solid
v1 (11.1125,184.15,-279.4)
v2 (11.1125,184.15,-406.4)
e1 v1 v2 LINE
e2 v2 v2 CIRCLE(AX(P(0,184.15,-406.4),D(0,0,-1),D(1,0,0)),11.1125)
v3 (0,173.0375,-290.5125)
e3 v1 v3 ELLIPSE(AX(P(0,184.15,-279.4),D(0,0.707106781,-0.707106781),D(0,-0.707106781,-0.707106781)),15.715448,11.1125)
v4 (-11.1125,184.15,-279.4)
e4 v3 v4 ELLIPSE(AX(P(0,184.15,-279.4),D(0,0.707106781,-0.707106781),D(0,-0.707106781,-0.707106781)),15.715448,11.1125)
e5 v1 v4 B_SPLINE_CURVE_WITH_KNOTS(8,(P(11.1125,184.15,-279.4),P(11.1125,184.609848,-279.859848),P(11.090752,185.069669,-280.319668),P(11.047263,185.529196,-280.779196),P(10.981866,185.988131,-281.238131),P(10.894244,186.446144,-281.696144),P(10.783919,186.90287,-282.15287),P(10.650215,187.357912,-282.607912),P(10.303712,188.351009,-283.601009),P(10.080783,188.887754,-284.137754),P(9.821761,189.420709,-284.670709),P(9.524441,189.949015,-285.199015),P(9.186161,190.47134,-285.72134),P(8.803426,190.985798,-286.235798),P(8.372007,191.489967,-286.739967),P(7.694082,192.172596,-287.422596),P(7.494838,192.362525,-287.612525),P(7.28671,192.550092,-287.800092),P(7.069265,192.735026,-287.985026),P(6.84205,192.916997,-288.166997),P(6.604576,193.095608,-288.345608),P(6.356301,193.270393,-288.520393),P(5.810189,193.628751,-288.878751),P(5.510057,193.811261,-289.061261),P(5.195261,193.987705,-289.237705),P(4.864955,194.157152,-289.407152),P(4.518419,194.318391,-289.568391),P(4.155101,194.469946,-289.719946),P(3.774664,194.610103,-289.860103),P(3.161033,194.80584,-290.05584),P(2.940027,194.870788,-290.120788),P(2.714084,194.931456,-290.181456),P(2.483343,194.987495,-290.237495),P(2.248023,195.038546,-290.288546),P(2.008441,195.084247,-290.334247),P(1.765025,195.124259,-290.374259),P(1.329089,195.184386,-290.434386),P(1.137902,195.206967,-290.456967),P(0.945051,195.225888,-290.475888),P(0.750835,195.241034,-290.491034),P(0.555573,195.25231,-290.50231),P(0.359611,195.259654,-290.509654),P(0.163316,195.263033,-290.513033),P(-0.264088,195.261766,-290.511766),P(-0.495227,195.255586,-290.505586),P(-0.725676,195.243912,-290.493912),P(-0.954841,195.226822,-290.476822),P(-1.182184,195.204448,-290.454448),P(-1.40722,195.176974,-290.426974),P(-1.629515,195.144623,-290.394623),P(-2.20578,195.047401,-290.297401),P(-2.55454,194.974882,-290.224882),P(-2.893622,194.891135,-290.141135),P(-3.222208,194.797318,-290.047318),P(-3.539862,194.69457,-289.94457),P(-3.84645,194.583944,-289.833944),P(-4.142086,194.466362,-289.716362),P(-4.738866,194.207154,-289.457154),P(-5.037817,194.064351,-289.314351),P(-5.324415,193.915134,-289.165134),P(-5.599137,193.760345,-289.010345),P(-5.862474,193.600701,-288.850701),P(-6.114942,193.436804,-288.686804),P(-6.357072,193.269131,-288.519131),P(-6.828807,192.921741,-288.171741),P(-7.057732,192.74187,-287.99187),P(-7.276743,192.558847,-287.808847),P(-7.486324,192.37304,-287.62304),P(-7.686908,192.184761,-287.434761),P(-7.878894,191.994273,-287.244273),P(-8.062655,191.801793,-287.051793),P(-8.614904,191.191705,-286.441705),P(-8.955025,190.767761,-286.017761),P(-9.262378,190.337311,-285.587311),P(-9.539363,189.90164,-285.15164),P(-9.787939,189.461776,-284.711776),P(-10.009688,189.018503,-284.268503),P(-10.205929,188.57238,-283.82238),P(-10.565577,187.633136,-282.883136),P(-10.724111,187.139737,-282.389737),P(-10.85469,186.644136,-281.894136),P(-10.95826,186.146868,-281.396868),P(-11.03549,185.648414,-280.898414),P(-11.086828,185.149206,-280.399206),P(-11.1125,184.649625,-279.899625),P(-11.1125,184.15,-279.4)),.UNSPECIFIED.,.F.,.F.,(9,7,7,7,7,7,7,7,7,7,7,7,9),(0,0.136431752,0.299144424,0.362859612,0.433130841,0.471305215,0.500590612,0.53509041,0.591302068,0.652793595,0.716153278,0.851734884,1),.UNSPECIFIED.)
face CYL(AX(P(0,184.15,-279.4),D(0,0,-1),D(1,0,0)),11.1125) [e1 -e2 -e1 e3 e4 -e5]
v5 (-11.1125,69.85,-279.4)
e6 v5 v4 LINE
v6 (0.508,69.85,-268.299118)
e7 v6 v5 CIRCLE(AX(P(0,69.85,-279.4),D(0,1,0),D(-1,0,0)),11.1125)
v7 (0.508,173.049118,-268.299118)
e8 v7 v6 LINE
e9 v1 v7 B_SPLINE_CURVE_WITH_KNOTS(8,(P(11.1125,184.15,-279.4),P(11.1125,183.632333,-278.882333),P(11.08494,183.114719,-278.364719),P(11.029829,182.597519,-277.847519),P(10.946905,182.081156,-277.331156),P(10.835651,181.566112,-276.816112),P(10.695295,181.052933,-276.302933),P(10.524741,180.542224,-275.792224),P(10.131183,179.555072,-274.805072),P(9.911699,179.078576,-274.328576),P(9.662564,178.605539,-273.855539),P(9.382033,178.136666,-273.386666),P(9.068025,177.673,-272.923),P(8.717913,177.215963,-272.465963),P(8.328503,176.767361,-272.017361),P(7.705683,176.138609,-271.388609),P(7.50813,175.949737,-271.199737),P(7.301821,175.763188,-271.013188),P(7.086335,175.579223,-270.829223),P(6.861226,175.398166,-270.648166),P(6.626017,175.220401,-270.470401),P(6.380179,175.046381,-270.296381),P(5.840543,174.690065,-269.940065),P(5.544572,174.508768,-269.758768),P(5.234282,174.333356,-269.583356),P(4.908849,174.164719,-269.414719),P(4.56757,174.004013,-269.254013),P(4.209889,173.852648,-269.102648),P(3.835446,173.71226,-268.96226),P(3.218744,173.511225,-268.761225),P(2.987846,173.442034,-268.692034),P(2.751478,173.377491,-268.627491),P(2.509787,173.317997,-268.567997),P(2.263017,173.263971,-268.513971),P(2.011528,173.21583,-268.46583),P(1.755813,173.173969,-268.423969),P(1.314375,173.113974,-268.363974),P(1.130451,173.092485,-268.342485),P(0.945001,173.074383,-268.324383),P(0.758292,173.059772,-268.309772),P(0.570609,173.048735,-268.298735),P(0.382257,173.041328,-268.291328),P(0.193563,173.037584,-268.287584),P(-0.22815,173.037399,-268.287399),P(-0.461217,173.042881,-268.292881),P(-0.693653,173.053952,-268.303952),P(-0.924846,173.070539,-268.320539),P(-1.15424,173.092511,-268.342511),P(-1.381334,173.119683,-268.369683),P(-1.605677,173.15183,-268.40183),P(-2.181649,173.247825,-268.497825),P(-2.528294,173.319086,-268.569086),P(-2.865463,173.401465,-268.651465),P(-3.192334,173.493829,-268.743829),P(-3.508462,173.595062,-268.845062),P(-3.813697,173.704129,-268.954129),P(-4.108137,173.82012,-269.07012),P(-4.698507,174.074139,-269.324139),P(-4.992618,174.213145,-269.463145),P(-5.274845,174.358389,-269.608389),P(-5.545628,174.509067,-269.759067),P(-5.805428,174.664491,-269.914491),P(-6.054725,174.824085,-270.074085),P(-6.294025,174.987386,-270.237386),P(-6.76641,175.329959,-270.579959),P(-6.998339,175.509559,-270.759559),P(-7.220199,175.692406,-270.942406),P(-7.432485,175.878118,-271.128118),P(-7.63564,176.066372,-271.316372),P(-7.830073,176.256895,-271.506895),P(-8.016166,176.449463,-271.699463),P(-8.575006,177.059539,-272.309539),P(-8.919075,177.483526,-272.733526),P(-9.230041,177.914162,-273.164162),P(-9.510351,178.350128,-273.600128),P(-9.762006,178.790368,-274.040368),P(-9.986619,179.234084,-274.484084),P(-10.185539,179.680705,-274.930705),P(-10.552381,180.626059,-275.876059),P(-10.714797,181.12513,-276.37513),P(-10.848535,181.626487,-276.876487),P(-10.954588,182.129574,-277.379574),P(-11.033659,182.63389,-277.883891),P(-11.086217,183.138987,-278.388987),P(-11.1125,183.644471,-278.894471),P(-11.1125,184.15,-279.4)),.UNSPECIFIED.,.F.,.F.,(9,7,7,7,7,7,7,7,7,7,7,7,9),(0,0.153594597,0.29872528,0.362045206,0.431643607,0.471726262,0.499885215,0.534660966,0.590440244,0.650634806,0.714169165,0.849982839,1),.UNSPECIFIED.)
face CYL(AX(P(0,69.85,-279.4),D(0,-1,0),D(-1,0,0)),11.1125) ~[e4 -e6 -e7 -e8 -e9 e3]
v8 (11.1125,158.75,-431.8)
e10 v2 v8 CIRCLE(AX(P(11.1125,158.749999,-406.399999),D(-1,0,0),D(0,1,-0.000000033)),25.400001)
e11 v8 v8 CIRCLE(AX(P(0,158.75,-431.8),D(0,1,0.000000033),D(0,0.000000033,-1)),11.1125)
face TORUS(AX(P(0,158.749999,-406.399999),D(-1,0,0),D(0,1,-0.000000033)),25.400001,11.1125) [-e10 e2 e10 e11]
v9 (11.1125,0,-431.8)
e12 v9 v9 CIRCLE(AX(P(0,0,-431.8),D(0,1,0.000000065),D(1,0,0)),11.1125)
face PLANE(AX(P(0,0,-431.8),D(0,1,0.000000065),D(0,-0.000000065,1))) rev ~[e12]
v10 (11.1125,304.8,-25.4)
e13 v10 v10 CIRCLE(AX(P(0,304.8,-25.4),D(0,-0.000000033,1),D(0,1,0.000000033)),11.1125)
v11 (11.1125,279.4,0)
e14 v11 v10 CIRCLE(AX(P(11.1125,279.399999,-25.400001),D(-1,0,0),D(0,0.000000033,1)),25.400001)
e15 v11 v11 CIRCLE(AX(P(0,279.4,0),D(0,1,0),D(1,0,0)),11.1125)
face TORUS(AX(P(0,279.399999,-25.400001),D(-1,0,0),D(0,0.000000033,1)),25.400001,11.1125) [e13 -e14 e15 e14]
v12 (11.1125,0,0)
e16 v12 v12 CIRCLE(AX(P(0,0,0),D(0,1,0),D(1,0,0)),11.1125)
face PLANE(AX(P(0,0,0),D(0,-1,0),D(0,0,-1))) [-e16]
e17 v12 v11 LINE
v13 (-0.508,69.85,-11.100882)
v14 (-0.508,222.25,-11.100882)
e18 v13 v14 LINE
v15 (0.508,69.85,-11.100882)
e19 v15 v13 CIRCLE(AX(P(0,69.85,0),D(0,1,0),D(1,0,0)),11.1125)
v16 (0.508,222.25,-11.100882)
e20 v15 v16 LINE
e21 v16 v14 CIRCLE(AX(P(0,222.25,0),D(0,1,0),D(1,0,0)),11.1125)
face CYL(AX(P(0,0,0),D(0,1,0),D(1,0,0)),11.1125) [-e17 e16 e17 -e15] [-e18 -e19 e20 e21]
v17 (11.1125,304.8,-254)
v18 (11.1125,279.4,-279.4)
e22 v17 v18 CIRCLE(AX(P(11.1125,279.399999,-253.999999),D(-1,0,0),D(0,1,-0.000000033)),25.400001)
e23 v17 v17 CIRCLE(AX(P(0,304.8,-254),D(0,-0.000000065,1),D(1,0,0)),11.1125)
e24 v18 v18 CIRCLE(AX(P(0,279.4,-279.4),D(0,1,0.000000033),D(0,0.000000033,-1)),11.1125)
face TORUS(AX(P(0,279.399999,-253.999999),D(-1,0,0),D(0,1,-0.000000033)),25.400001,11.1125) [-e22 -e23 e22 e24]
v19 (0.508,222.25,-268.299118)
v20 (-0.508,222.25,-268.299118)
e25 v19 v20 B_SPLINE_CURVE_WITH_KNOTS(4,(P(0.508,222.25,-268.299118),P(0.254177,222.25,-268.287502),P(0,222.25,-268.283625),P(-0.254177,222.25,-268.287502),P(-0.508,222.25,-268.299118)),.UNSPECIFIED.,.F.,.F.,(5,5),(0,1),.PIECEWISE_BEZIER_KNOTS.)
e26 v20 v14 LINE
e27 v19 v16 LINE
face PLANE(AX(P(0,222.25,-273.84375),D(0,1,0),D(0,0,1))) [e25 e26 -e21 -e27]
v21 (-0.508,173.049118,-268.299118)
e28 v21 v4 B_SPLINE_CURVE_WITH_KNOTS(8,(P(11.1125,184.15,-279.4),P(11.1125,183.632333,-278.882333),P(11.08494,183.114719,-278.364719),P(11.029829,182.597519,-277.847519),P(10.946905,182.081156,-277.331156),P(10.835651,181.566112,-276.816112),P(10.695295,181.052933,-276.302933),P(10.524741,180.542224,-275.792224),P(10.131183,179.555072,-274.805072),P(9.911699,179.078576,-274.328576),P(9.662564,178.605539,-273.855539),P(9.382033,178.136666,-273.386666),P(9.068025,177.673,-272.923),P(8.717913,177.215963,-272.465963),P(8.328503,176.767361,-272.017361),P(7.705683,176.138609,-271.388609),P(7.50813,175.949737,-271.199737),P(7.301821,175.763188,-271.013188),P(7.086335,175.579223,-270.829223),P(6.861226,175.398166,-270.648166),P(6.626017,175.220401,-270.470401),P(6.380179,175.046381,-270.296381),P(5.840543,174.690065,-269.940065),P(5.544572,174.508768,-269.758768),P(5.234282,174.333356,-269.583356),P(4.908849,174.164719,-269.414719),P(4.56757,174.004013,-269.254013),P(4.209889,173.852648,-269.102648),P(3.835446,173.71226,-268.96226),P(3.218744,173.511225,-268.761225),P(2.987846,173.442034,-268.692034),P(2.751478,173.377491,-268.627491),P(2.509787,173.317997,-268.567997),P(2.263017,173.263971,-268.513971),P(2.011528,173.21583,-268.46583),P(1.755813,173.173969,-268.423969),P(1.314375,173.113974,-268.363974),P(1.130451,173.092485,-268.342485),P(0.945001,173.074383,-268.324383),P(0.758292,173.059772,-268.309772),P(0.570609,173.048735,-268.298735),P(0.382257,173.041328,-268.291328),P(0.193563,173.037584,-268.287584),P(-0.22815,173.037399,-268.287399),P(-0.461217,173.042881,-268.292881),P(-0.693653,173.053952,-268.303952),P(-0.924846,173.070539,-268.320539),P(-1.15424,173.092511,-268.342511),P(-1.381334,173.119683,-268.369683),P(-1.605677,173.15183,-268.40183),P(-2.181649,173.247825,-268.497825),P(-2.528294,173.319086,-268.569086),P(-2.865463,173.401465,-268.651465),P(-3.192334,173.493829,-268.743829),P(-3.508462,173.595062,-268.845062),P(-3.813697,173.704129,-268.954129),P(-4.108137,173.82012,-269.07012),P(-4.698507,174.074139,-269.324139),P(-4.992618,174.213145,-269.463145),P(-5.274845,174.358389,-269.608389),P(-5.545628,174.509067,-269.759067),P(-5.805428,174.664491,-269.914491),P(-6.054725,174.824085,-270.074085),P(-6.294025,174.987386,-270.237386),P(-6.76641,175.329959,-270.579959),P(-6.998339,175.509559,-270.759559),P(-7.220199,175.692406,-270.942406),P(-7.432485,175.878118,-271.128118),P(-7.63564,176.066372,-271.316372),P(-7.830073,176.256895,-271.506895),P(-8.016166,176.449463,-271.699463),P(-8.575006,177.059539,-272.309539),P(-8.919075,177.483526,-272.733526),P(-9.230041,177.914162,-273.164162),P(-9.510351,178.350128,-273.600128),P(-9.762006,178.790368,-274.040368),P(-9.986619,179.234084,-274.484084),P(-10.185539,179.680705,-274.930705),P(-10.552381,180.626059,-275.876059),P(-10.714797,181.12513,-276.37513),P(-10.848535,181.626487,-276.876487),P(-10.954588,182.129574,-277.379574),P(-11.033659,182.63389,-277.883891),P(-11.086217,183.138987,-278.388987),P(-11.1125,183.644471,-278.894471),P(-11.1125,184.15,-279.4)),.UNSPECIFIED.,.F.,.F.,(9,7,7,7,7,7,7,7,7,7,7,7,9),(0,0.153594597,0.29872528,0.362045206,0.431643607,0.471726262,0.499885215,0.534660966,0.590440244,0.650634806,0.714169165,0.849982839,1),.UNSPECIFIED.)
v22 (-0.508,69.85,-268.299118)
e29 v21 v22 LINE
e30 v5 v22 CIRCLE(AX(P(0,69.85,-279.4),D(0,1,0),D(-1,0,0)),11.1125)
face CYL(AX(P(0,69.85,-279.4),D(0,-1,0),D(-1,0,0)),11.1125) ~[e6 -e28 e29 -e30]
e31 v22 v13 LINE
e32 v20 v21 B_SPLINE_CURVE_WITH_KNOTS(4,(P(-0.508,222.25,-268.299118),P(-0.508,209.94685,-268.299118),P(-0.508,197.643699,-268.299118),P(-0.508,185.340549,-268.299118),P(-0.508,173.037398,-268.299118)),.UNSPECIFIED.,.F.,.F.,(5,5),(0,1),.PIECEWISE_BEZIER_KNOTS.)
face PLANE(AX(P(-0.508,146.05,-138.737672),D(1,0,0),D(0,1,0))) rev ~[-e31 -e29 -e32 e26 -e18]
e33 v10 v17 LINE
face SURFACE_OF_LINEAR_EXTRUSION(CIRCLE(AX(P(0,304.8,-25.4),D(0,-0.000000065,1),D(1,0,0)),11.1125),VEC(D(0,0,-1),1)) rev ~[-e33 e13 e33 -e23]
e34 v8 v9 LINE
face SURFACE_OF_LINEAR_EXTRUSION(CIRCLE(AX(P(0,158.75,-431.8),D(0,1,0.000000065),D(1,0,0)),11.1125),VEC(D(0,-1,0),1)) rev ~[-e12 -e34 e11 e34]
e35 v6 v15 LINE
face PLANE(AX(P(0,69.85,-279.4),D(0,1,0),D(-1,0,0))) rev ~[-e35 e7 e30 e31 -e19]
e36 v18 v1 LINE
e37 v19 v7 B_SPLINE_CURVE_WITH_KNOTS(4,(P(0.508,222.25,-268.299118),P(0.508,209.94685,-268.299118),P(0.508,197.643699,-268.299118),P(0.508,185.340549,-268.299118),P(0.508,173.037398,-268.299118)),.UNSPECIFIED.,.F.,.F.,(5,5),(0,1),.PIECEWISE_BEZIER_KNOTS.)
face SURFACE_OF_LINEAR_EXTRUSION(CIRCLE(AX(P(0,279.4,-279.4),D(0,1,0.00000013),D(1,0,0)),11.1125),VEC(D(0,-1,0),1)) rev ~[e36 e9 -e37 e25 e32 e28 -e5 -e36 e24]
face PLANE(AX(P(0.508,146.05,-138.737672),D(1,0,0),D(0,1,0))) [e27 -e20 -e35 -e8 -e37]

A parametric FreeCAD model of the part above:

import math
import FreeCAD as App
import Part
import Sketcher

V = App.Vector
Q = App.Units.Quantity

doc = App.newDocument("Part")
body = doc.addObject("PartDesign::Body", "Body")

sketch1 = body.newObject("Sketcher::SketchObject", "Sketch")
sketch1.AttachmentSupport = (doc.getObject("XZ_Plane"), [""])
sketch1.MapMode = "FlatFace"
sketch1.addGeometry(Part.Circle(V(0, 0, 0), V(0, 0, 1), 11), False)
sketch1.addConstraint(Sketcher.Constraint("Coincident", 0, 3, -1, 1))
sketch1.addConstraint(Sketcher.Constraint("Diameter", 0, Q("0.875 in")))

sketch2 = body.newObject("Sketcher::SketchObject", "Sketch001")
sketch2.AttachmentSupport = (doc.getObject("YZ_Plane"), [""])
sketch2.MapMode = "FlatFace"
sketch2.addGeometry(Part.LineSegment(V(0, 0, 0), V(279, 0, 0)), False)
sketch2.addGeometry(Part.ArcOfCircle(Part.Circle(V(279, -25, 0), V(0, 0, 1), 25), math.radians(0), math.radians(90)), False)
sketch2.addGeometry(Part.LineSegment(V(305, -25, 0), V(305, -254, 0)), False)
sketch2.addGeometry(Part.ArcOfCircle(Part.Circle(V(279, -254, 0), V(0, 0, 1), 25), math.radians(-90), math.radians(0)), False)
sketch2.addGeometry(Part.LineSegment(V(279, -279, 0), V(184, -279, 0)), False)
sketch2.addGeometry(Part.LineSegment(V(184, -279, 0), V(184, -406, 0)), False)
sketch2.addGeometry(Part.ArcOfCircle(Part.Circle(V(159, -406, 0), V(0, 0, 1), 25), math.radians(-90), math.radians(0)), False)
sketch2.addGeometry(Part.LineSegment(V(159, -432, 0), V(0, -432, 0)), False)
sketch2.addConstraint(Sketcher.Constraint("Tangent", 0, 2, 1, 2))
sketch2.addConstraint(Sketcher.Constraint("Tangent", 1, 1, 2, 1))
sketch2.addConstraint(Sketcher.Constraint("Tangent", 2, 2, 3, 2))
sketch2.addConstraint(Sketcher.Constraint("Tangent", 3, 1, 4, 1))
sketch2.addConstraint(Sketcher.Constraint("Coincident", 4, 2, 5, 1))
sketch2.addConstraint(Sketcher.Constraint("Tangent", 5, 2, 6, 2))
sketch2.addConstraint(Sketcher.Constraint("Tangent", 6, 1, 7, 1))
sketch2.addConstraint(Sketcher.Constraint("Horizontal", 0))
sketch2.addConstraint(Sketcher.Constraint("Vertical", 2))
sketch2.addConstraint(Sketcher.Constraint("Horizontal", 4))
sketch2.addConstraint(Sketcher.Constraint("Vertical", 5))
sketch2.addConstraint(Sketcher.Constraint("Horizontal", 7))
sketch2.addConstraint(Sketcher.Constraint("Coincident", 0, 1, -1, 1))
sketch2.addConstraint(Sketcher.Constraint("Equal", 1, 3))
sketch2.addConstraint(Sketcher.Constraint("Equal", 3, 6))
sketch2.addConstraint(Sketcher.Constraint("PointOnObject", 7, 2, -2))
sketch2.addConstraint(Sketcher.Constraint("Radius", 1, Q("1 in")))
sketch2.addConstraint(Sketcher.Constraint("DistanceX", 0, 1, 0, 2, Q("11 in")))
sketch2.addConstraint(Sketcher.Constraint("DistanceY", 2, 2, 2, 1, Q("9 in")))
sketch2.addConstraint(Sketcher.Constraint("DistanceY", 5, 2, 5, 1, Q("5 in")))
sketch2.addConstraint(Sketcher.Constraint("DistanceX", 4, 2, 4, 1, Q("3.75 in")))
doc.recompute()

additivepipe = body.newObject("PartDesign::AdditivePipe", "AdditivePipe")
additivepipe.Profile = sketch1
additivepipe.Spine = (sketch2, ["Edge1", "Edge2", "Edge3", "Edge4", "Edge5", "Edge6", "Edge7", "Edge8"])
additivepipe.Transition = "Right corner"

sketch3 = body.newObject("Sketcher::SketchObject", "Sketch002")
sketch3.AttachmentSupport = (doc.getObject("XZ_Plane"), [""])
sketch3.MapMode = "FlatFace"
sketch3.AttachmentOffset = App.Placement(V(0, 0, -2.75 * 25.4), App.Rotation())
sketch3.addGeometry(Part.Circle(V(0, -279, 0), V(0, 0, 1), 11), False)
sketch3.addConstraint(Sketcher.Constraint("PointOnObject", 0, 3, -2))
sketch3.addConstraint(Sketcher.Constraint("Diameter", 0, Q("0.875 in")))
sketch3.addConstraint(Sketcher.Constraint("DistanceY", 0, 3, -1, 1, Q("11 in")))
pad1 = body.newObject("PartDesign::Pad", "Pad")
pad1.Profile = sketch3
pad1.Length = 137
pad1.Reversed = True

sketch4 = body.newObject("Sketcher::SketchObject", "Sketch003")
sketch4.AttachmentSupport = (doc.getObject("YZ_Plane"), [""])
sketch4.MapMode = "FlatFace"
sketch4.addGeometry(Part.LineSegment(V(70, -4, 0), V(70, -274, 0)), False)
sketch4.addGeometry(Part.LineSegment(V(70, -274, 0), V(222, -274, 0)), False)
sketch4.addGeometry(Part.LineSegment(V(222, -274, 0), V(222, -4, 0)), False)
sketch4.addGeometry(Part.LineSegment(V(222, -4, 0), V(70, -4, 0)), False)
sketch4.addConstraint(Sketcher.Constraint("Coincident", 0, 2, 1, 1))
sketch4.addConstraint(Sketcher.Constraint("Coincident", 1, 2, 2, 1))
sketch4.addConstraint(Sketcher.Constraint("Coincident", 2, 2, 3, 1))
sketch4.addConstraint(Sketcher.Constraint("Coincident", 3, 2, 0, 1))
sketch4.addConstraint(Sketcher.Constraint("Vertical", 0))
sketch4.addConstraint(Sketcher.Constraint("Horizontal", 1))
sketch4.addConstraint(Sketcher.Constraint("Vertical", 2))
sketch4.addConstraint(Sketcher.Constraint("Horizontal", 3))
sketch4.addConstraint(Sketcher.Constraint("DistanceX", 1, 1, 1, 2, Q("6 in")))
sketch4.addConstraint(Sketcher.Constraint("DistanceX", -1, 1, 0, 2, Q("2.75 in")))
sketch4.addConstraint(Sketcher.Constraint("DistanceY", 0, 2, -1, 1, Q("10.78125 in")))
sketch4.addConstraint(Sketcher.Constraint("DistanceY", 0, 2, 0, 1, Q("270.212156 mm")))
pad2 = body.newObject("PartDesign::Pad", "Pad001")
pad2.Profile = sketch4
pad2.Length = Q("0.04 in")
pad2.Midplane = True

doc.recompute()
